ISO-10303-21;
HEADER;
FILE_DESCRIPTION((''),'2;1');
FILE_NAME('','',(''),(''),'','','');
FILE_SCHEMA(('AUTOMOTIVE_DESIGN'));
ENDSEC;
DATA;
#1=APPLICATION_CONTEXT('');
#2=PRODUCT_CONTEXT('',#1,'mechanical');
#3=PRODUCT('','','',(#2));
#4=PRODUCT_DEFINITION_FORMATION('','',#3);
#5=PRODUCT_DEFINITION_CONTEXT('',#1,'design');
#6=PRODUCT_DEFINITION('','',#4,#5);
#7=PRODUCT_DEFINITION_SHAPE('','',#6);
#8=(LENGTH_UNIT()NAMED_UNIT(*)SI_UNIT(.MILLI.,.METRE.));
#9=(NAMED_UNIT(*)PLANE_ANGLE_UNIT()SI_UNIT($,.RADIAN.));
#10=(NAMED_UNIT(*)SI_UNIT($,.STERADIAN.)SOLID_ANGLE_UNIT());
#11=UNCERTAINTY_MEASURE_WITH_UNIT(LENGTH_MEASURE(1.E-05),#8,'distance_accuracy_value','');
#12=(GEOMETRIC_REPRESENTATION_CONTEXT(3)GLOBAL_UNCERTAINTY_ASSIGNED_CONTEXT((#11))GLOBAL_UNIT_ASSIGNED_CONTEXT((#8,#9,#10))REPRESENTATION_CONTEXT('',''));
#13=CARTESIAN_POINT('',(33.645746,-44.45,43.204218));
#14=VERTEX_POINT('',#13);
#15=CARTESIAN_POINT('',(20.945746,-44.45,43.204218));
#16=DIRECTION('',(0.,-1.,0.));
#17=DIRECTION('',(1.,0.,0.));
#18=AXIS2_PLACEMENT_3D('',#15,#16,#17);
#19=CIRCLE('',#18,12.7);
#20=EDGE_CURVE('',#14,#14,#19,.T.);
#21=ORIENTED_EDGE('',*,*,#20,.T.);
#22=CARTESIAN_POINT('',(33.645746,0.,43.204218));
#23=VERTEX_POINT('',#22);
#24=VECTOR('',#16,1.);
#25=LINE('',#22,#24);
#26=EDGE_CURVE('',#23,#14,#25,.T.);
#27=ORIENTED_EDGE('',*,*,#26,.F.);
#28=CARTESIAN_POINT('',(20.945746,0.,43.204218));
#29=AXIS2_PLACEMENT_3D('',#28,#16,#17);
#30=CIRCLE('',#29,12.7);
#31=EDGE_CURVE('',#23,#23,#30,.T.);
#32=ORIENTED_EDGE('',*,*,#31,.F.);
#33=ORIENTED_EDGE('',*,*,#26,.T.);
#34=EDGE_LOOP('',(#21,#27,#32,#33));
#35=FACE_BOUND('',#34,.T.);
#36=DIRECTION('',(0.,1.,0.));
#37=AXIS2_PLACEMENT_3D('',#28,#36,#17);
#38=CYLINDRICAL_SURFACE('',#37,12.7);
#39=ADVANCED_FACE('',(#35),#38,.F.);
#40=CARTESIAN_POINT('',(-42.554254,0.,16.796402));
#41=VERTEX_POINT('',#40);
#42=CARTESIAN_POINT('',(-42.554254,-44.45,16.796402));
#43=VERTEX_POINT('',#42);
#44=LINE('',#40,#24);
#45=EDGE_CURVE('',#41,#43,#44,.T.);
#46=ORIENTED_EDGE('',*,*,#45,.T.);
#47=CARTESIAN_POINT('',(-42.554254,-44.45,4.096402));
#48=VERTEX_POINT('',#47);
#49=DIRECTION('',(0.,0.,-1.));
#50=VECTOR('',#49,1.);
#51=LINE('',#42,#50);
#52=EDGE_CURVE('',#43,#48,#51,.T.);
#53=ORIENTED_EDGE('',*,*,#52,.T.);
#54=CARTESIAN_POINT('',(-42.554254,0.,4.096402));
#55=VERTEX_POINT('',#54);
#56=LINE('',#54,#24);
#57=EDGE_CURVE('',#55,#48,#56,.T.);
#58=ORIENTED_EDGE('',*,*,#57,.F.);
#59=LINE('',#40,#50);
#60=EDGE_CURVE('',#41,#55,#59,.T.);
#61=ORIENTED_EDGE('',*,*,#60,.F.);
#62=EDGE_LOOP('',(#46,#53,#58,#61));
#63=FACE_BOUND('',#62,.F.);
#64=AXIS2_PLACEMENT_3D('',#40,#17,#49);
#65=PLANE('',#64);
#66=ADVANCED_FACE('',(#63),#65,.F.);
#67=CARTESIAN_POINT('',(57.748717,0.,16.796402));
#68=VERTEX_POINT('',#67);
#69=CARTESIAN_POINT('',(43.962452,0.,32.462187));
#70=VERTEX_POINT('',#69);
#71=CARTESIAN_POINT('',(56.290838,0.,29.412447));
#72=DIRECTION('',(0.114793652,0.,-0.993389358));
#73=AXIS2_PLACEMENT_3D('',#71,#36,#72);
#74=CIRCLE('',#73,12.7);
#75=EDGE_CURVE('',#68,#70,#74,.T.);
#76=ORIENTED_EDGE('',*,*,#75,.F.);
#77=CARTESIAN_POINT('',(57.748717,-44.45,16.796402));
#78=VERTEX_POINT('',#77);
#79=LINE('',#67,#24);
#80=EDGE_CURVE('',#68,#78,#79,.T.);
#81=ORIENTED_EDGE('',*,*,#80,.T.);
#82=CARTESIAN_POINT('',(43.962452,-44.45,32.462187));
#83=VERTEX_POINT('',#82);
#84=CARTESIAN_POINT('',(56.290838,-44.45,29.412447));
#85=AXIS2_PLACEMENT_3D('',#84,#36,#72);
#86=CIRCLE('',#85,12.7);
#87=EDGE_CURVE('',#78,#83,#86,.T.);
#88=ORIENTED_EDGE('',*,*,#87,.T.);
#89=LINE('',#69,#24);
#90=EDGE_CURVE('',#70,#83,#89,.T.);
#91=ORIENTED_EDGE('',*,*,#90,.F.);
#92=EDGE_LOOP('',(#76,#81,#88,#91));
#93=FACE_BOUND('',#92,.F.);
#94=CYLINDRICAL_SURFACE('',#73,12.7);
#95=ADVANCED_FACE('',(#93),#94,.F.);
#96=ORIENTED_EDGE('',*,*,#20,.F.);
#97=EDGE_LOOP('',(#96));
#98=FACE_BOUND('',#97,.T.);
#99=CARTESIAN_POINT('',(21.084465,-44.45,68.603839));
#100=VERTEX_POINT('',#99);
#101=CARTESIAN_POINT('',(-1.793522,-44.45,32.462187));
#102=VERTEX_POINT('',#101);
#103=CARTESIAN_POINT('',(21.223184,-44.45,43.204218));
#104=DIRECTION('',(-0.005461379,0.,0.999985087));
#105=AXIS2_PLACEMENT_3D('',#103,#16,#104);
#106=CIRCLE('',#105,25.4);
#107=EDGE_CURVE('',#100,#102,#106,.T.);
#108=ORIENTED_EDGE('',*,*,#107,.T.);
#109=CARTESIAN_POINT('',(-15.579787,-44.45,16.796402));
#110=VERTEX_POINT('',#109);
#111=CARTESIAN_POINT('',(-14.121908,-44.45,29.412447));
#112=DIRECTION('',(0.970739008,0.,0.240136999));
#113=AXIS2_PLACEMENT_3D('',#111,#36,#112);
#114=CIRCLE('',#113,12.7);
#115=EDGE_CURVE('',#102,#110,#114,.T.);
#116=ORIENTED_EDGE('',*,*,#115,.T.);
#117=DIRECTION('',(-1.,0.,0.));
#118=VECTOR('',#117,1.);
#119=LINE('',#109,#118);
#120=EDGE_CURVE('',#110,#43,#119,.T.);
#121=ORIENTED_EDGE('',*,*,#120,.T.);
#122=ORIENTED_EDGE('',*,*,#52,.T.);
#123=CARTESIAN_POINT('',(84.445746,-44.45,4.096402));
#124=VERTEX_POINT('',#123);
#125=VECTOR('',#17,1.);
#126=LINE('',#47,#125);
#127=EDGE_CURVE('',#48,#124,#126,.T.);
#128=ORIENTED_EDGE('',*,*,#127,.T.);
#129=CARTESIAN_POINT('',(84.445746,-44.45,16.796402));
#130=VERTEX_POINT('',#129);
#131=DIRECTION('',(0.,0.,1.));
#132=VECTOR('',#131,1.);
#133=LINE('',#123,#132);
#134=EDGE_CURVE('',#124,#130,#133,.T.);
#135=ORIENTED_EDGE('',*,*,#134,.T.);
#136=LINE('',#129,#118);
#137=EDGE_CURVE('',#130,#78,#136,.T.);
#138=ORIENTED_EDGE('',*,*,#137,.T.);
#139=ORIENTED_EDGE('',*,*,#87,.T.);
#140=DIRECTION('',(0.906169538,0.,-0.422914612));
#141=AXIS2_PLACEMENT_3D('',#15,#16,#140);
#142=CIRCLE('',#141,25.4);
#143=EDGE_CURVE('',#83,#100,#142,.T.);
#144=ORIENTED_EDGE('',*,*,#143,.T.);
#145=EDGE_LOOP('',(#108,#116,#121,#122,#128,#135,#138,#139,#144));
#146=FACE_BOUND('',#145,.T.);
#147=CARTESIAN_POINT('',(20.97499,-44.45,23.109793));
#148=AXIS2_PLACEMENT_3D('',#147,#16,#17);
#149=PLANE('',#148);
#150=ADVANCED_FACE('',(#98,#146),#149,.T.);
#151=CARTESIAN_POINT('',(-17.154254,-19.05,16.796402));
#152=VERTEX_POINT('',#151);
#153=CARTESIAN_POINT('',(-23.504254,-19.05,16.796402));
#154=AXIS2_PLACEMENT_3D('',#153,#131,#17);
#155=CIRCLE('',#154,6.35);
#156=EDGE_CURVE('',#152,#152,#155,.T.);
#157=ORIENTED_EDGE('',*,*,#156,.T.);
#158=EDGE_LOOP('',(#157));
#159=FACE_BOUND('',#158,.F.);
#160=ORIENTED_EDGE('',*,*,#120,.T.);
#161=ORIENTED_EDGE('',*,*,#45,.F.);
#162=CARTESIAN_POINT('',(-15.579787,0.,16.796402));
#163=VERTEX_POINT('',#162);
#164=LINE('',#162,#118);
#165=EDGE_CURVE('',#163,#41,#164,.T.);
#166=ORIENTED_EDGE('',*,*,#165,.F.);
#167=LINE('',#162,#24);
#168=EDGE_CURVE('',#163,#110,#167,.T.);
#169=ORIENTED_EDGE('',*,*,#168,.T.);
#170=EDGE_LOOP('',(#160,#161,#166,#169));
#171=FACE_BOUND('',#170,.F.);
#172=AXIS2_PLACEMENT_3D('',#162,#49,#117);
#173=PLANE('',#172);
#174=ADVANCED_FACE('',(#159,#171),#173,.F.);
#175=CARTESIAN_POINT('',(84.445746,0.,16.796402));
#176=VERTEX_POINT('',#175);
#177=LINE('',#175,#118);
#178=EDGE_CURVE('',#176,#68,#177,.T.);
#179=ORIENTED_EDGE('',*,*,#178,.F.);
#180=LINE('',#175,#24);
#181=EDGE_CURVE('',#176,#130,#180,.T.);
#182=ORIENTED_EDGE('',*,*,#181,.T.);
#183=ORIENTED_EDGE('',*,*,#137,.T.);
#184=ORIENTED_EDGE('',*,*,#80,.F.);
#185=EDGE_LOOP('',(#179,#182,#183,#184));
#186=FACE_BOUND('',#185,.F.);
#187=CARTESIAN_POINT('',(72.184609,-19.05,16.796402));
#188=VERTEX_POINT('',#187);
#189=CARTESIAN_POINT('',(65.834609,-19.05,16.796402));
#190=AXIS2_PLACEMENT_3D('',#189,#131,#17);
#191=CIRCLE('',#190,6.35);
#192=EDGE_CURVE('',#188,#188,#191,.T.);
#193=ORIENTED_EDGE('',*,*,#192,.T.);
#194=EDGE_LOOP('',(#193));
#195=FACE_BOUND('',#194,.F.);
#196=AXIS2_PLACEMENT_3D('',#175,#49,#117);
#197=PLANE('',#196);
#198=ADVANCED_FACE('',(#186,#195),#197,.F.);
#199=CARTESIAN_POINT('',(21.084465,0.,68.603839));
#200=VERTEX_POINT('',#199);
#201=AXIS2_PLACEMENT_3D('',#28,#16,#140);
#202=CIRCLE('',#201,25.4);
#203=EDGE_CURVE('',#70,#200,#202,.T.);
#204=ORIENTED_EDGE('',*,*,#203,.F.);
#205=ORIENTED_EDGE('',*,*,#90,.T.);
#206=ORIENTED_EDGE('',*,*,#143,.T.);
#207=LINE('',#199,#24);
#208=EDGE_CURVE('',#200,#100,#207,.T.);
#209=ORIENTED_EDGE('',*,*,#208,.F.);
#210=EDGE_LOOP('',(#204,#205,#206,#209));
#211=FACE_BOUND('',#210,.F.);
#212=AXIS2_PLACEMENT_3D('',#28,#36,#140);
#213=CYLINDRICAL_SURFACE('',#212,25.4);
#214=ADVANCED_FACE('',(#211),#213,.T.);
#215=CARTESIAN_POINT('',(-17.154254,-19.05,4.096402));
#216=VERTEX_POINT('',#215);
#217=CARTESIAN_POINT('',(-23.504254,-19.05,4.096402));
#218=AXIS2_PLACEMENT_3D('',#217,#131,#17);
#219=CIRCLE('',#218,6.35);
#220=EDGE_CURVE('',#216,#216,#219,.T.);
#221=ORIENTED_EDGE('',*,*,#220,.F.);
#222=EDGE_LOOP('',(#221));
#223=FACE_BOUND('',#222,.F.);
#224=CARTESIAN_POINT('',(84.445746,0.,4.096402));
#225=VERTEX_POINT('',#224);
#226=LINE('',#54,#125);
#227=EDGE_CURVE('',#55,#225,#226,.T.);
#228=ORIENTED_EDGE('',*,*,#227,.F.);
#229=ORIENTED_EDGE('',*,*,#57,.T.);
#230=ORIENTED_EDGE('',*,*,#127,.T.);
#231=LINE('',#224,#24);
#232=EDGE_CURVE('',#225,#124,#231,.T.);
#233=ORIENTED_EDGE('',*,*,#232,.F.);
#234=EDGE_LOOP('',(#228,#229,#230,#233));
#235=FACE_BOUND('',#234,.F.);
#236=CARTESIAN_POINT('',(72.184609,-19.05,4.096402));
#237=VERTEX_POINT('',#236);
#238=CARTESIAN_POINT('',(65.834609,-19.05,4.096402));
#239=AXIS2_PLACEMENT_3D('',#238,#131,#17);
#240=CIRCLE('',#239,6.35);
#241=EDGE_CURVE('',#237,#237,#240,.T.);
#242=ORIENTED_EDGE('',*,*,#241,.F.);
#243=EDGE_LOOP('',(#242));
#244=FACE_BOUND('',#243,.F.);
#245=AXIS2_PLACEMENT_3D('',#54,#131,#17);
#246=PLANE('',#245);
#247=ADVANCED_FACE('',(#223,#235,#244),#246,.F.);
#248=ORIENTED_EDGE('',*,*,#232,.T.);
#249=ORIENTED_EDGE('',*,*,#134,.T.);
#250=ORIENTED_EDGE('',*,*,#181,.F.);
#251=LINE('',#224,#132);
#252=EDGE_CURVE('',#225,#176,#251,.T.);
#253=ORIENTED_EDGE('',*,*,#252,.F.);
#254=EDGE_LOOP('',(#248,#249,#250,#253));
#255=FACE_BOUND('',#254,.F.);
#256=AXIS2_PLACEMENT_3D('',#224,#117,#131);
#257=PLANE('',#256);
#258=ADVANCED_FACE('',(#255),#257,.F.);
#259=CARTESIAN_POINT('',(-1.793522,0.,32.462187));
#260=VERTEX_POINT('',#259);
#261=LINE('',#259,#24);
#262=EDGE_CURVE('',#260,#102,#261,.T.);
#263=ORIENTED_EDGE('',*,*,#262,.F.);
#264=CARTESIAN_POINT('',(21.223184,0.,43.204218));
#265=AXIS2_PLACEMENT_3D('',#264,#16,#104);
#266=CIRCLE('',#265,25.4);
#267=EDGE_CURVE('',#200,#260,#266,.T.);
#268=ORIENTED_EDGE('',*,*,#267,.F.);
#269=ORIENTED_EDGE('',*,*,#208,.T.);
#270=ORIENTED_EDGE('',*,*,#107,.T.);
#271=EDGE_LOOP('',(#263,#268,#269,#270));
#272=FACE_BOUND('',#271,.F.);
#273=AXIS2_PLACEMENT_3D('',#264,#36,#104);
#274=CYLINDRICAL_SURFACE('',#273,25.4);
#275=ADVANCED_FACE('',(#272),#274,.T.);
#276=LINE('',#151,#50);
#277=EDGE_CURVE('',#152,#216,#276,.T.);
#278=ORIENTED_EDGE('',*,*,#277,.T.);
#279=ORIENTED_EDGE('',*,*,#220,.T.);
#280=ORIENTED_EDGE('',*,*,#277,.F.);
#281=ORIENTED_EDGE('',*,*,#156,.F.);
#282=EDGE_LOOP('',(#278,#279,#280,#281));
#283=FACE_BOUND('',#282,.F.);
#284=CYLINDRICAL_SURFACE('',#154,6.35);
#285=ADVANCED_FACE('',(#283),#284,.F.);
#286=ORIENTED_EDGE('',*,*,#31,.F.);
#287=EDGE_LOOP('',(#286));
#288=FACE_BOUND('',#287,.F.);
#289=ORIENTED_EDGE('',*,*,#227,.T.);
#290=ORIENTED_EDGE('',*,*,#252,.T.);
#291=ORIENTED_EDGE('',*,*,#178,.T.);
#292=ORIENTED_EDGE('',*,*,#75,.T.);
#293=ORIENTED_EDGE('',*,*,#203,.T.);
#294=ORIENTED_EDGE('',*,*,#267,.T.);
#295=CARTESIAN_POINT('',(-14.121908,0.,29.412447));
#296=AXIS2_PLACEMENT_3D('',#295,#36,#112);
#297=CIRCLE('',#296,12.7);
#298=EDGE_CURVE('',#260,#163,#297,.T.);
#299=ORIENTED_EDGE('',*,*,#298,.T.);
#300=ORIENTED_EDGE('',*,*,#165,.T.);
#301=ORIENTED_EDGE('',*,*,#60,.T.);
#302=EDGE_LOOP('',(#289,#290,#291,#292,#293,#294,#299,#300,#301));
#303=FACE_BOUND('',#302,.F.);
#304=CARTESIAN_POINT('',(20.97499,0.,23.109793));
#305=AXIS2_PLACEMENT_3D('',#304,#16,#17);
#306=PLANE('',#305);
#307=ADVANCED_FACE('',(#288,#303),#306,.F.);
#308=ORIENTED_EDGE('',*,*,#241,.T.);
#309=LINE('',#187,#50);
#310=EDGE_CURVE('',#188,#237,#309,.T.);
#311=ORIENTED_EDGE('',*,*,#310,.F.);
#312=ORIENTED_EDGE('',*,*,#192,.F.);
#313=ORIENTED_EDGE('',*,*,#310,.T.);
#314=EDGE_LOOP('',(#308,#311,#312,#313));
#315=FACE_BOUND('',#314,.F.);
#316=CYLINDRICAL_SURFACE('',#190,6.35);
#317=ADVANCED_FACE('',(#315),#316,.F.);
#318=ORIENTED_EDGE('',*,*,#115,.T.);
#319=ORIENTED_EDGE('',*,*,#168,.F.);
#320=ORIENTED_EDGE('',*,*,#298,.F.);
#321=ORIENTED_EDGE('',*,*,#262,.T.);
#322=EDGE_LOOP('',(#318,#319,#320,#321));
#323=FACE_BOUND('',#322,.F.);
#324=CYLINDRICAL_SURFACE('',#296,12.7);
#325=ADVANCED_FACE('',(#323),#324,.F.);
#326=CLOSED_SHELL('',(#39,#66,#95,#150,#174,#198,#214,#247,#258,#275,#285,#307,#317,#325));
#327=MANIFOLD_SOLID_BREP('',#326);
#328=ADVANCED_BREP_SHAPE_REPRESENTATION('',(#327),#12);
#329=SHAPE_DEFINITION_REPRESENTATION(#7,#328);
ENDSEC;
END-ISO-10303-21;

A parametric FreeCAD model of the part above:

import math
import FreeCAD as App
import Part
import Sketcher

V = App.Vector
Q = App.Units.Quantity

doc = App.newDocument("Part")
body = doc.addObject("PartDesign::Body", "Body")

# Sketch on XZ plane
sketch1 = doc.addObject("Sketcher::SketchObject", "Sketch")
body.addObject(sketch1)
sketch1.AttachmentSupport = (doc.XZ_Plane, [""])
sketch1.MapMode = "FlatFace"
sketch1.addGeometry([
    Part.ArcOfCircle(Part.Circle(V(56.290838, 29.412447, 0), V(0, 0, 1), 12.7), math.radians(166.105374), math.radians(276.591723)),  # 0
    Part.ArcOfCircle(Part.Circle(V(20.945746, 43.204218, 0), V(0, 0, 1), 25.4), math.radians(-25.018736), math.radians(89.687084)),  # 1
    Part.ArcOfCircle(Part.Circle(V(21.223184, 43.204218, 0), V(0, 0, 1), 25.4), math.radians(90.312916), math.radians(205.018736)),  # 2
    Part.ArcOfCircle(Part.Circle(V(-14.121908, 29.412447, 0), V(0, 0, 1), 12.7), math.radians(-96.591723), math.radians(13.894626)),  # 3
    Part.LineSegment(V(-15.579787, 16.796402, 0), V(-42.554254, 16.796402, 0)),  # 4
    Part.LineSegment(V(-42.554254, 16.796402, 0), V(-42.554254, 4.096402, 0)),  # 5
    Part.LineSegment(V(-42.554254, 4.096402, 0), V(84.445746, 4.096402, 0)),  # 6
    Part.LineSegment(V(84.445746, 4.096402, 0), V(84.445746, 16.796402, 0)),  # 7
    Part.LineSegment(V(84.445746, 16.796402, 0), V(57.748717, 16.796402, 0)),  # 8
    Part.Circle(V(20.945746, 43.204218, 0), V(0, 0, 1), 12.7),  # 9
], False)
sketch1.addConstraint([
    Sketcher.Constraint("Coincident", 0, 1, 1, 1),
    Sketcher.Constraint("Coincident", 1, 2, 2, 1),
    Sketcher.Constraint("Coincident", 2, 2, 3, 2),
    Sketcher.Constraint("Coincident", 3, 1, 4, 1),
    Sketcher.Constraint("Coincident", 4, 2, 5, 1),
    Sketcher.Constraint("Coincident", 5, 2, 6, 1),
    Sketcher.Constraint("Coincident", 6, 2, 7, 1),
    Sketcher.Constraint("Coincident", 7, 2, 8, 1),
    Sketcher.Constraint("Coincident", 8, 2, 0, 2),
    Sketcher.Constraint("Horizontal", 4),
    Sketcher.Constraint("Vertical", 5),
    Sketcher.Constraint("Horizontal", 6),
    Sketcher.Constraint("Vertical", 7),
    Sketcher.Constraint("Horizontal", 8),
    Sketcher.Constraint("Coincident", 9, 3, 1, 3),
    Sketcher.Constraint("Equal", 1, 2),
    Sketcher.Constraint("Equal", 0, 3),
    Sketcher.Constraint("Equal", 3, 9),
    Sketcher.Constraint("Horizontal", 1, 3, 2, 3),
    Sketcher.Constraint("Horizontal", 0, 3, 3, 3),
    Sketcher.Constraint("Horizontal", 0, 1, 2, 2),
    Sketcher.Constraint("Horizontal", 4, 2, 7, 2),
    Sketcher.Constraint("Diameter", 9, Q("1 in")),
    Sketcher.Constraint("Radius", 1, Q("1 in")),
    Sketcher.Constraint("DistanceX", 6, 1, 6, 2, Q("5 in")),
    Sketcher.Constraint("DistanceY", 5, 2, 5, 1, Q("0.5 in")),
    Sketcher.Constraint("DistanceX", 4, 2, 1, 3, Q("2.5 in")),
    Sketcher.Constraint("DistanceX", 8, 2, 8, 1, 26.697029),
    Sketcher.Constraint("DistanceX", 4, 2, 4, 1, 26.974467),
    Sketcher.Constraint("DistanceY", -1, 1, 1, 3, 43.204218),
    Sketcher.Constraint("DistanceX", 2, 2, -1, 1, 1.793522),
    Sketcher.Constraint("DistanceX", 1, 3, 0, 3, 35.345092),
    Sketcher.Constraint("DistanceY", 0, 3, 1, 3, 13.791771),
])
pad1 = doc.addObject("PartDesign::Pad", "Pad")
body.addObject(pad1)
pad1.Profile = sketch1
pad1.Length = Q("1.75 in")

# Sketch on XY plane
sketch2 = doc.addObject("Sketcher::SketchObject", "Sketch001")
body.addObject(sketch2)
sketch2.AttachmentSupport = (doc.XY_Plane, [""])
sketch2.MapMode = "FlatFace"
sketch2.AttachmentOffset = App.Placement(V(0, 0, 16.796402), App.Rotation())
sketch2.addGeometry([
    Part.Circle(V(65.834609, -19.05, 0), V(0, 0, 1), 6.35),
    Part.Circle(V(-23.504254, -19.05, 0), V(0, 0, 1), 6.35),
], False)
sketch2.addConstraint([
    Sketcher.Constraint("Equal", 0, 1),
    Sketcher.Constraint("Horizontal", 0, 3, 1, 3),
    Sketcher.Constraint("Diameter", 0, Q("0.5 in")),
    Sketcher.Constraint("DistanceY", 0, 3, -1, 1, Q("0.75 in")),
    Sketcher.Constraint("DistanceX", -1, 1, 0, 3, 65.834609),
    Sketcher.Constraint("DistanceX", 1, 3, -1, 1, 23.504254),
])
pocket1 = doc.addObject("PartDesign::Pocket", "Pocket")
body.addObject(pocket1)
pocket1.Profile = sketch2
pocket1.Type = "ThroughAll"

doc.recompute()
